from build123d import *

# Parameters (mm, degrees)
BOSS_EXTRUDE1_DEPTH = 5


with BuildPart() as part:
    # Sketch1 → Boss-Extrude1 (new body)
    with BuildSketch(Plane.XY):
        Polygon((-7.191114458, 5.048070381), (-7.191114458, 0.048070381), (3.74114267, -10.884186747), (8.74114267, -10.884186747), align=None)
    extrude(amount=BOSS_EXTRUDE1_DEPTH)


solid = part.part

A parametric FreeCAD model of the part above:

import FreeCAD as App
import Part
import Sketcher

V = App.Vector
Q = App.Units.Quantity

doc = App.newDocument("Part")
body = doc.addObject("PartDesign::Body", "Body")

# Sketch on XY plane
sketch1 = doc.addObject("Sketcher::SketchObject", "Sketch")
body.addObject(sketch1)
sketch1.AttachmentSupport = (doc.XY_Plane, [""])
sketch1.MapMode = "FlatFace"
sketch1.addGeometry(Part.LineSegment(V(-7.191114, 5.04807, 0), V(-7.191114, 0.04807, 0)), False)
sketch1.addGeometry(Part.LineSegment(V(-7.191114, 0.04807, 0), V(3.741143, -10.884187, 0)), False)
sketch1.addGeometry(Part.LineSegment(V(3.741143, -10.884187, 0), V(8.741143, -10.884187, 0)), False)
sketch1.addGeometry(Part.LineSegment(V(8.741143, -10.884187, 0), V(-7.191114, 5.04807, 0)), False)
sketch1.addConstraint(Sketcher.Constraint("Coincident", 0, 2, 1, 1))
sketch1.addConstraint(Sketcher.Constraint("Coincident", 1, 2, 2, 1))
sketch1.addConstraint(Sketcher.Constraint("Coincident", 2, 2, 3, 1))
sketch1.addConstraint(Sketcher.Constraint("Coincident", 3, 2, 0, 1))
sketch1.addConstraint(Sketcher.Constraint("Vertical", 0))
sketch1.addConstraint(Sketcher.Constraint("Horizontal", 2))
sketch1.addConstraint(Sketcher.Constraint("Parallel", 1, 3))
sketch1.addConstraint(Sketcher.Constraint("Equal", 2, 0))
sketch1.addConstraint(Sketcher.Constraint("DistanceX", 2, 1, 2, 2, Q("5 mm")))
sketch1.addConstraint(Sketcher.Constraint("DistanceY", -1, 1, 0, 2, Q("0.04807 mm")))
sketch1.addConstraint(Sketcher.Constraint("Distance", 1, Q("15.460546 mm")))
sketch1.addConstraint(Sketcher.Constraint("DistanceX", 0, 2, -1, 1, Q("7.191114 mm")))
pad1 = doc.addObject("PartDesign::Pad", "Pad")
body.addObject(pad1)
pad1.Profile = sketch1
pad1.Length = 5

doc.recompute()
